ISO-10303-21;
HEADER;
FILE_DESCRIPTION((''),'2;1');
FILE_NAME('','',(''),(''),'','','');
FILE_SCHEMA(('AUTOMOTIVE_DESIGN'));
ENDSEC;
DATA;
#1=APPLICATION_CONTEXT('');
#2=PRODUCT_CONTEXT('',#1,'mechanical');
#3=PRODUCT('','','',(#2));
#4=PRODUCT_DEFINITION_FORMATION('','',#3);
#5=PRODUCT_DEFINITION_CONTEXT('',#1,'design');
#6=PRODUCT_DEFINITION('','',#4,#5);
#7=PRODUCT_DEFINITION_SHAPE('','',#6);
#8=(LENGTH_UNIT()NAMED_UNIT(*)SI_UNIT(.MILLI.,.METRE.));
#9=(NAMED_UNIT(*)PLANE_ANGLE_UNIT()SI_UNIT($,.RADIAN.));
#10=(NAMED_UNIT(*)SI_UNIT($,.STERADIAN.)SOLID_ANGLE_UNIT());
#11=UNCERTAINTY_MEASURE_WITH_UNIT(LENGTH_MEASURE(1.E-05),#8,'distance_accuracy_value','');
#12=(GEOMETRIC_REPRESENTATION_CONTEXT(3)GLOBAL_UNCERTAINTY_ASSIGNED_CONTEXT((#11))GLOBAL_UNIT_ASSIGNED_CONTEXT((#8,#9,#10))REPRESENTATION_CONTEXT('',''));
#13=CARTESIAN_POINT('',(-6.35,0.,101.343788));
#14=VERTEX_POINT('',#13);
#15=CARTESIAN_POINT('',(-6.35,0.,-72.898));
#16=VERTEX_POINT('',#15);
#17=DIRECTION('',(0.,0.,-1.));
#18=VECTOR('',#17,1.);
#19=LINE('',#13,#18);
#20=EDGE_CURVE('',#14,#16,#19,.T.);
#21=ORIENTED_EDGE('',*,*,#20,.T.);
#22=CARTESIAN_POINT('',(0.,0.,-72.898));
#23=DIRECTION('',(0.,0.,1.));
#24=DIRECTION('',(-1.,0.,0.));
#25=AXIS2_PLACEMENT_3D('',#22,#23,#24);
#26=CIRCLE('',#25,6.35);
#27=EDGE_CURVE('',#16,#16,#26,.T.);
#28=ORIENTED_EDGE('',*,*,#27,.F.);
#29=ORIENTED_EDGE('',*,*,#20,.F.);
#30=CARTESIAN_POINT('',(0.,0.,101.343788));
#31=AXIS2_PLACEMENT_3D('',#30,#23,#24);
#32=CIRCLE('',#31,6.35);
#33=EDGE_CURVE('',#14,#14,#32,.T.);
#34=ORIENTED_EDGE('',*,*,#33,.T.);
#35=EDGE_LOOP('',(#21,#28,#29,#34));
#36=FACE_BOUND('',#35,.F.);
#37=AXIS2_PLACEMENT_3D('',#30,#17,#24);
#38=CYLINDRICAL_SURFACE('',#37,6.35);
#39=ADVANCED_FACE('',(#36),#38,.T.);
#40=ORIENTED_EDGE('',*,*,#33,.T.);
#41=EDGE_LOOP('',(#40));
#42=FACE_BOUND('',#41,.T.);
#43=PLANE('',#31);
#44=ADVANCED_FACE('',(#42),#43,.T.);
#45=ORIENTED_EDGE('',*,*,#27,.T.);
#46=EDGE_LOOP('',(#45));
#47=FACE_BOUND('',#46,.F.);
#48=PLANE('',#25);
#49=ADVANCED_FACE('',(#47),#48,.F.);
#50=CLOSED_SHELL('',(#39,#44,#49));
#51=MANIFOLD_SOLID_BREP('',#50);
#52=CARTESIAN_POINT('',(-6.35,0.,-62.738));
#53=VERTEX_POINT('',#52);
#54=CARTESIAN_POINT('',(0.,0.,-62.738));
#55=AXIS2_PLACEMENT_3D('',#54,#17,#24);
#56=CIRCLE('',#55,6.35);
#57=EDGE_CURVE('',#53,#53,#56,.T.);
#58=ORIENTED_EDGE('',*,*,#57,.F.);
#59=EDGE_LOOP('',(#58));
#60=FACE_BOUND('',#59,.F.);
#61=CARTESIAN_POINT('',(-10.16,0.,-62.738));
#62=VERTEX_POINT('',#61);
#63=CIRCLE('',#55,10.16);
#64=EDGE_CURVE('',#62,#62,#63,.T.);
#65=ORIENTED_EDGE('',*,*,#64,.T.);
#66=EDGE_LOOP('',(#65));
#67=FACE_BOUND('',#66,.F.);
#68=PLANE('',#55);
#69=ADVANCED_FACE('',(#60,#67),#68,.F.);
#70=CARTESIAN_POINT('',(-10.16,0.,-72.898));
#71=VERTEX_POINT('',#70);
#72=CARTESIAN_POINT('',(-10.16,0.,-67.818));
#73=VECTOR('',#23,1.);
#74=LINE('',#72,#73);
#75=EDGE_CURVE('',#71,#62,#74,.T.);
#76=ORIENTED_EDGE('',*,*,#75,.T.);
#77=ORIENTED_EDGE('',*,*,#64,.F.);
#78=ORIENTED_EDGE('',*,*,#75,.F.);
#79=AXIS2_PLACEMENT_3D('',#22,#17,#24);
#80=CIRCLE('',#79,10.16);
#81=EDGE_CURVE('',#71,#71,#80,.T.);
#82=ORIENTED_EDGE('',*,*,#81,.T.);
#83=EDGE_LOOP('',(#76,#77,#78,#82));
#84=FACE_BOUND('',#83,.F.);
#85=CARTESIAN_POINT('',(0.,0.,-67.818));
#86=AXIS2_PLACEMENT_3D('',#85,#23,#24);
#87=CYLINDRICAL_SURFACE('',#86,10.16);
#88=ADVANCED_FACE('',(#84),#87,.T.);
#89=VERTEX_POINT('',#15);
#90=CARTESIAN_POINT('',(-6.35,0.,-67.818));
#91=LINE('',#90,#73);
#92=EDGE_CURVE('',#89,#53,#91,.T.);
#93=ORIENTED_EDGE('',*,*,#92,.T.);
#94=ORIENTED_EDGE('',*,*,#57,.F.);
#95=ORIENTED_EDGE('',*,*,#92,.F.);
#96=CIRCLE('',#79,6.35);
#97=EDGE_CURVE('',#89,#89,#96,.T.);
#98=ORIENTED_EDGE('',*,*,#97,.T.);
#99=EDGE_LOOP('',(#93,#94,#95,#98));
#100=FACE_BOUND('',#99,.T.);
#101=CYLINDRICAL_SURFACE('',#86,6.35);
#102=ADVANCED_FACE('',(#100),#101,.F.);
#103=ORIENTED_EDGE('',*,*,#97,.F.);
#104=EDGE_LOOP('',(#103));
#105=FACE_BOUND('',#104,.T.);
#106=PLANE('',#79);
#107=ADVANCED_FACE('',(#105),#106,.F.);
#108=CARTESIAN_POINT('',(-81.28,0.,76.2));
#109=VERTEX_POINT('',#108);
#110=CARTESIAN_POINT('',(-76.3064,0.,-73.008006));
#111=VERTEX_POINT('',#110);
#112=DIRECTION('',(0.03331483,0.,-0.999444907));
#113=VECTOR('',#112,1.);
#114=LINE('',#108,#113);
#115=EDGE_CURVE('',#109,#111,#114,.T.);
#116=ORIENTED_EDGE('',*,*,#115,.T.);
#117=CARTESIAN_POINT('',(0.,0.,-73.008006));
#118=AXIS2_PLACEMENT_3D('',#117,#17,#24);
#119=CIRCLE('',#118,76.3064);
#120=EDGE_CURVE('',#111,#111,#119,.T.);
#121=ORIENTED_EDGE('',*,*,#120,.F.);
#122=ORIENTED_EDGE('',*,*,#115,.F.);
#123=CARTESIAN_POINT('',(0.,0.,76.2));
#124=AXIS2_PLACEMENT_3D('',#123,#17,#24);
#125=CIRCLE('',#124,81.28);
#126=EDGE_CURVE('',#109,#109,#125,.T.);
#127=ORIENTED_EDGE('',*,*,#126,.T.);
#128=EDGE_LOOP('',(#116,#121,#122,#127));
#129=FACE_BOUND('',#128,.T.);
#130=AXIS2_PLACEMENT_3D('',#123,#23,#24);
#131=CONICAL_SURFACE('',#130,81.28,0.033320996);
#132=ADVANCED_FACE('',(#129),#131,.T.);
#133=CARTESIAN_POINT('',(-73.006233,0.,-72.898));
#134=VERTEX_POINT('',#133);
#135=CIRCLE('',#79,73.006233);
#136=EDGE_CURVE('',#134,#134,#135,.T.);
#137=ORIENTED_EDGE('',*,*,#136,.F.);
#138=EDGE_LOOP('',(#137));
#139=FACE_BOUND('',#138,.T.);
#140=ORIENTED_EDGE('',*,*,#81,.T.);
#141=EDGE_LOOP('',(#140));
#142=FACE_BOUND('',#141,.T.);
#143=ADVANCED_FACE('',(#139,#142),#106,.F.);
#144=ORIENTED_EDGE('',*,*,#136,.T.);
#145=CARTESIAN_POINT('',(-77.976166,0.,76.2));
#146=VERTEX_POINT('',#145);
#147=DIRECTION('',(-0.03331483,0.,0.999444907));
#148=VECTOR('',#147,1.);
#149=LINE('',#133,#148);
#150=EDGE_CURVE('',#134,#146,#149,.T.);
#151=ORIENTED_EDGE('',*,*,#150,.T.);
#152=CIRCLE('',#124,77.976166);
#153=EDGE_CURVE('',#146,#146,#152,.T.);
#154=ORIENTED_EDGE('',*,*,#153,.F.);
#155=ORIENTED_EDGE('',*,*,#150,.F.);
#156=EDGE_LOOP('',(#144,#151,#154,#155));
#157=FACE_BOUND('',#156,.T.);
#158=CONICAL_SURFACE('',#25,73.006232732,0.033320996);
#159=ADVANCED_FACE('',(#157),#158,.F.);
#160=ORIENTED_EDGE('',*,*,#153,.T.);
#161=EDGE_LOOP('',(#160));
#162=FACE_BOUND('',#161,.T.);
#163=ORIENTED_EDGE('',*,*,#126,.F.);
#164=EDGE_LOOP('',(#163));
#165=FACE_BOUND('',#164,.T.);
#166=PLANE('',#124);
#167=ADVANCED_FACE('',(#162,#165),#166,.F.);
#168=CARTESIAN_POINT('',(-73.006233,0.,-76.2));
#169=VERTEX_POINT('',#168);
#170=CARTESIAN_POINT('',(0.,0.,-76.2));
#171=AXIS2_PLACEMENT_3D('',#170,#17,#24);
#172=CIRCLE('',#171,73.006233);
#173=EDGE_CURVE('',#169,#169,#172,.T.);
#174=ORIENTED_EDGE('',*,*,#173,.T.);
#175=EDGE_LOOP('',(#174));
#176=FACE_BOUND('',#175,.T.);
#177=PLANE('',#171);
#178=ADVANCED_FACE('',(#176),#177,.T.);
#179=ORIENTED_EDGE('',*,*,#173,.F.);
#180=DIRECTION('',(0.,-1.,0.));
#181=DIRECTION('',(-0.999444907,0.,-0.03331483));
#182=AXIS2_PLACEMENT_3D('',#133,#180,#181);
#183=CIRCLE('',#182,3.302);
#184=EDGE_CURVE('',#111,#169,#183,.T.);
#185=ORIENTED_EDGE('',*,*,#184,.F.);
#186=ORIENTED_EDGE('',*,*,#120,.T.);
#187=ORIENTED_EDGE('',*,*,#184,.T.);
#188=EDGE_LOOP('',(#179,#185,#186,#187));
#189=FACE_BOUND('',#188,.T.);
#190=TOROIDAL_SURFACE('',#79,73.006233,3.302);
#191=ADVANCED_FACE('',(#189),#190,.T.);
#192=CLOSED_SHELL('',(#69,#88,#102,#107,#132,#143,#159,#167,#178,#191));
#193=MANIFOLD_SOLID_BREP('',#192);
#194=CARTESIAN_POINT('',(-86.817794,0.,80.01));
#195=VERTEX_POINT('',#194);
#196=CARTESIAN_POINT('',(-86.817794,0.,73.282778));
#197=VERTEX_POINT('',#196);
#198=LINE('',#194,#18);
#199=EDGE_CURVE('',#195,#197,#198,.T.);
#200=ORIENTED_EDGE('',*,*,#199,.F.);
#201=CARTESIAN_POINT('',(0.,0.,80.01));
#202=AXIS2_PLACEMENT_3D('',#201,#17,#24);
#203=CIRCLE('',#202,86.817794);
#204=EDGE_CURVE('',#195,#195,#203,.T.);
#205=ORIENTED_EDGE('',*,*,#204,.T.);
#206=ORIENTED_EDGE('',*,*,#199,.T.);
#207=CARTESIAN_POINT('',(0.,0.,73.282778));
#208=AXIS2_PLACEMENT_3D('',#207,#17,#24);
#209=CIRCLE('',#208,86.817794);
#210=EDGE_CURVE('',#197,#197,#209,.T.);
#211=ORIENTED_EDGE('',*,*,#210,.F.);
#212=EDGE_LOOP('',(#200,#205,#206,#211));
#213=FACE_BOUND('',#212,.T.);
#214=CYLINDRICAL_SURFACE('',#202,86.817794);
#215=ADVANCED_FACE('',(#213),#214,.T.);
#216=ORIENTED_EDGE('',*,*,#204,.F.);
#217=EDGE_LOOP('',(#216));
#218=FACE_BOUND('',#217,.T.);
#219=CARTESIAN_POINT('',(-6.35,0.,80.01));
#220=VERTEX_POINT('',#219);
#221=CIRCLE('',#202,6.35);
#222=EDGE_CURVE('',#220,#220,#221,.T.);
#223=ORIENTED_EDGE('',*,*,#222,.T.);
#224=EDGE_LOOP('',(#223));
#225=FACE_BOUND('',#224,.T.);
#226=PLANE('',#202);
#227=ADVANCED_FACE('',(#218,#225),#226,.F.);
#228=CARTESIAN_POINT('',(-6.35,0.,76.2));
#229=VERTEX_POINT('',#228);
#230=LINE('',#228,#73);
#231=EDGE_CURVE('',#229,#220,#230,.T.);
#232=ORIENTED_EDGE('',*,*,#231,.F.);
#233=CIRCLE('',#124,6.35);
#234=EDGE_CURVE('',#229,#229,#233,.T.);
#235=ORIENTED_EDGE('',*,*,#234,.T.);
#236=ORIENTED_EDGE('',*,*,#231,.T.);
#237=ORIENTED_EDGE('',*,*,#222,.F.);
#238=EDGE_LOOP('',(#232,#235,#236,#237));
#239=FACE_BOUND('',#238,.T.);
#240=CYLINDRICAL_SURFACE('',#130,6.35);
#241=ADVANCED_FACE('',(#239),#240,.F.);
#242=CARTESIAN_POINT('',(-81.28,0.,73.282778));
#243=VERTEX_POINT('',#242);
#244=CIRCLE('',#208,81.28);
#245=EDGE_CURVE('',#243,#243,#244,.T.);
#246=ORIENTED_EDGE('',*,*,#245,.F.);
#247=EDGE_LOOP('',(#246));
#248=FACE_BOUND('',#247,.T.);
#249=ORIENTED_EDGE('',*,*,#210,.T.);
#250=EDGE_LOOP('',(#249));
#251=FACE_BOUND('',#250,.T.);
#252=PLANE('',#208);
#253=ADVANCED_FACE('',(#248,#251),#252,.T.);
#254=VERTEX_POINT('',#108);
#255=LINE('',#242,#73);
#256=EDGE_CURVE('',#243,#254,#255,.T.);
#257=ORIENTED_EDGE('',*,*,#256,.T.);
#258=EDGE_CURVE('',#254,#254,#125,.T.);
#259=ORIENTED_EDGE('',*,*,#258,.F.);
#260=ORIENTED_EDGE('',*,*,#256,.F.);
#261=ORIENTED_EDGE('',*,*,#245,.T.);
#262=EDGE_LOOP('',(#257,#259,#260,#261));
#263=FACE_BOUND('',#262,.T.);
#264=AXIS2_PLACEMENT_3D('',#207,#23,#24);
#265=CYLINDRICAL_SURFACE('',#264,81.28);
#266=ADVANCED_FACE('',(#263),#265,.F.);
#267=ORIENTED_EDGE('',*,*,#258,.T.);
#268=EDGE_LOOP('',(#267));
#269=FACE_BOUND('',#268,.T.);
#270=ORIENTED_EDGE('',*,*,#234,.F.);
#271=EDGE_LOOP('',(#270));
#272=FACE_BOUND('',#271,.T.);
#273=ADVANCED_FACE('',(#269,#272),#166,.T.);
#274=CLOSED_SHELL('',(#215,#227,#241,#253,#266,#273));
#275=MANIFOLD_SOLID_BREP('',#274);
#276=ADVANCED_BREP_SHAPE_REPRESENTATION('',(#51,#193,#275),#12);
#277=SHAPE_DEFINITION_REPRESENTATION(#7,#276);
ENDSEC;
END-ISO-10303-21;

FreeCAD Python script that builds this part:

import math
import FreeCAD as App
import Part
import Sketcher
Q = App.Units.Quantity


def add_polygon(sketch, points):
    """Adds a closed chain of lines whose ends are joined by coincident constraints."""
    first, n = sketch.GeometryCount, len(points)
    for a, b in zip(points, points[1:] + points[:1]):
        sketch.addGeometry(Part.LineSegment(App.Vector(*a, 0), App.Vector(*b, 0)), False)
    for i in range(n):
        sketch.addConstraint(Sketcher.Constraint("Coincident", first + i, 2, first + (i + 1) % n, 1))

doc = App.newDocument("Part")
body = doc.addObject("PartDesign::Body", "Body")

# Sketch on XZ plane
sketch1 = body.newObject("Sketcher::SketchObject", "Sketch")
sketch1.AttachmentSupport = (doc.getObject("XZ_Plane"), [""])
sketch1.MapMode = "FlatFace"
sketch1.addGeometry(Part.LineSegment(App.Vector(0, -76.2, 0), App.Vector(0, -72.9, 0)), False)
sketch1.addGeometry(Part.LineSegment(App.Vector(0, -72.9, 0), App.Vector(-6.3, -72.9, 0)), False)
sketch1.addGeometry(Part.LineSegment(App.Vector(-6.3, -72.9, 0), App.Vector(-6.3, -62.7, 0)), False)
sketch1.addGeometry(Part.LineSegment(App.Vector(-6.3, -62.7, 0), App.Vector(-10.2, -62.7, 0)), False)
sketch1.addGeometry(Part.LineSegment(App.Vector(-10.2, -62.7, 0), App.Vector(-10.2, -72.9, 0)), False)
sketch1.addGeometry(Part.LineSegment(App.Vector(-10.2, -72.9, 0), App.Vector(-73, -72.9, 0)), False)
sketch1.addGeometry(Part.LineSegment(App.Vector(-73, -72.9, 0), App.Vector(-78, 76.2, 0)), False)
sketch1.addGeometry(Part.LineSegment(App.Vector(-78, 76.2, 0), App.Vector(-81.3, 76.2, 0)), False)
sketch1.addGeometry(Part.LineSegment(App.Vector(-81.3, 76.2, 0), App.Vector(-76.3, -73, 0)), False)
sketch1.addGeometry(Part.ArcOfCircle(Part.Circle(App.Vector(-73, -72.9, 0), App.Vector(0, 0, 1), 3.3), math.radians(-178), math.radians(-90)), False)
sketch1.addGeometry(Part.LineSegment(App.Vector(-73, -76.2, 0), App.Vector(0, -76.2, 0)), False)
sketch1.addConstraint(Sketcher.Constraint("Coincident", 0, 2, 1, 1))
sketch1.addConstraint(Sketcher.Constraint("Coincident", 1, 2, 2, 1))
sketch1.addConstraint(Sketcher.Constraint("Coincident", 2, 2, 3, 1))
sketch1.addConstraint(Sketcher.Constraint("Coincident", 3, 2, 4, 1))
sketch1.addConstraint(Sketcher.Constraint("Coincident", 4, 2, 5, 1))
sketch1.addConstraint(Sketcher.Constraint("Coincident", 5, 2, 6, 1))
sketch1.addConstraint(Sketcher.Constraint("Coincident", 6, 2, 7, 1))
sketch1.addConstraint(Sketcher.Constraint("Coincident", 7, 2, 8, 1))
sketch1.addConstraint(Sketcher.Constraint("Tangent", 8, 2, 9, 1))
sketch1.addConstraint(Sketcher.Constraint("Tangent", 9, 2, 10, 1))
sketch1.addConstraint(Sketcher.Constraint("Coincident", 10, 2, 0, 1))
sketch1.addConstraint(Sketcher.Constraint("Vertical", 0))
sketch1.addConstraint(Sketcher.Constraint("Horizontal", 1))
sketch1.addConstraint(Sketcher.Constraint("Vertical", 2))
sketch1.addConstraint(Sketcher.Constraint("Horizontal", 3))
sketch1.addConstraint(Sketcher.Constraint("Vertical", 4))
sketch1.addConstraint(Sketcher.Constraint("Horizontal", 5))
sketch1.addConstraint(Sketcher.Constraint("Horizontal", 7))
sketch1.addConstraint(Sketcher.Constraint("Horizontal", 10))
sketch1.addConstraint(Sketcher.Constraint("Coincident", 5, 2, 9, 3))
sketch1.addConstraint(Sketcher.Constraint("PointOnObject", 0, 2, -2))
sketch1.addConstraint(Sketcher.Constraint("Parallel", 6, 8))
sketch1.addConstraint(Sketcher.Constraint("Horizontal", 9, 3, 0, 2))
sketch1.addConstraint(Sketcher.Constraint("Radius", 9, Q("0.13 in")))
sketch1.addConstraint(Sketcher.Constraint("DistanceY", 2, 1, 2, 2, Q("0.4 in")))
sketch1.addConstraint(Sketcher.Constraint("DistanceY", -1, 1, 6, 2, Q("3 in")))
sketch1.addConstraint(Sketcher.Constraint("DistanceY", 9, 2, -1, 1, Q("3 in")))
sketch1.addConstraint(Sketcher.Constraint("DistanceX", 1, 2, 1, 1, Q("0.25 in")))
sketch1.addConstraint(Sketcher.Constraint("DistanceX", 3, 2, 3, 1, Q("0.15 in")))
sketch1.addConstraint(Sketcher.Constraint("DistanceX", 7, 2, -1, 1, Q("3.2 in")))
sketch1.addConstraint(Sketcher.Constraint("DistanceX", 8, 2, -1, 1, 76.3064))
revolution = body.newObject("PartDesign::Revolution", "Revolution")
revolution.Profile = sketch1
revolution.ReferenceAxis = (sketch1, ["V_Axis"])
revolution.Angle = 360
body2 = doc.addObject("PartDesign::Body", "Body001")

# Sketch on XZ plane
sketch2 = body2.newObject("Sketcher::SketchObject", "Sketch001")
sketch2.AttachmentSupport = (doc.getObject("XZ_Plane001"), [""])
sketch2.MapMode = "FlatFace"
add_polygon(sketch2, [(-6.3, 76.2), (-6.3, 80), (-86.8, 80), (-86.8, 73.3), (-81.3, 73.3), (-81.3, 76.2)])  # lines 0-5
sketch2.addConstraint(Sketcher.Constraint("Vertical", 0))
sketch2.addConstraint(Sketcher.Constraint("Horizontal", 1))
sketch2.addConstraint(Sketcher.Constraint("Vertical", 2))
sketch2.addConstraint(Sketcher.Constraint("Horizontal", 3))
sketch2.addConstraint(Sketcher.Constraint("Vertical", 4))
sketch2.addConstraint(Sketcher.Constraint("Horizontal", 5))
sketch2.addConstraint(Sketcher.Constraint("DistanceY", -1, 1, 4, 2, Q("3 in")))
sketch2.addConstraint(Sketcher.Constraint("DistanceX", 5, 1, 5, 2, Q("2.95 in")))
sketch2.addConstraint(Sketcher.Constraint("DistanceY", 0, 1, 0, 2, Q("0.15 in")))
sketch2.addConstraint(Sketcher.Constraint("DistanceX", 3, 2, -1, 1, Q("3.2 in")))
sketch2.addConstraint(Sketcher.Constraint("DistanceY", 2, 2, 2, 1, 6.727222))
sketch2.addConstraint(Sketcher.Constraint("DistanceX", 1, 2, 1, 1, 80.467794))
revolution2 = body2.newObject("PartDesign::Revolution", "Revolution001")
revolution2.Profile = sketch2
revolution2.ReferenceAxis = (sketch2, ["V_Axis"])
revolution2.Angle = 360
body3 = doc.addObject("PartDesign::Body", "Body002")

# Sketch on XZ plane
sketch3 = body3.newObject("Sketcher::SketchObject", "Sketch002")
sketch3.AttachmentSupport = (doc.getObject("XZ_Plane002"), [""])
sketch3.MapMode = "FlatFace"
add_polygon(sketch3, [(-6, 101), (-6, -73), (0, -73), (0, 101)])  # lines 0-3
sketch3.addConstraint(Sketcher.Constraint("Vertical", 0))
sketch3.addConstraint(Sketcher.Constraint("Horizontal", 1))
sketch3.addConstraint(Sketcher.Constraint("Vertical", 2))
sketch3.addConstraint(Sketcher.Constraint("Horizontal", 3))
sketch3.addConstraint(Sketcher.Constraint("PointOnObject", 1, 2, -2))
sketch3.addConstraint(Sketcher.Constraint("DistanceX", 1, 1, 1, 2, Q("0.25 in")))
sketch3.addConstraint(Sketcher.Constraint("DistanceY", 0, 2, -1, 1, Q("2.87 in")))
sketch3.addConstraint(Sketcher.Constraint("DistanceY", 0, 2, 0, 1, 174.241788))
revolution3 = body3.newObject("PartDesign::Revolution", "Revolution002")
revolution3.Profile = sketch3
revolution3.ReferenceAxis = (sketch3, ["V_Axis"])
revolution3.Angle = 360

doc.recompute()
